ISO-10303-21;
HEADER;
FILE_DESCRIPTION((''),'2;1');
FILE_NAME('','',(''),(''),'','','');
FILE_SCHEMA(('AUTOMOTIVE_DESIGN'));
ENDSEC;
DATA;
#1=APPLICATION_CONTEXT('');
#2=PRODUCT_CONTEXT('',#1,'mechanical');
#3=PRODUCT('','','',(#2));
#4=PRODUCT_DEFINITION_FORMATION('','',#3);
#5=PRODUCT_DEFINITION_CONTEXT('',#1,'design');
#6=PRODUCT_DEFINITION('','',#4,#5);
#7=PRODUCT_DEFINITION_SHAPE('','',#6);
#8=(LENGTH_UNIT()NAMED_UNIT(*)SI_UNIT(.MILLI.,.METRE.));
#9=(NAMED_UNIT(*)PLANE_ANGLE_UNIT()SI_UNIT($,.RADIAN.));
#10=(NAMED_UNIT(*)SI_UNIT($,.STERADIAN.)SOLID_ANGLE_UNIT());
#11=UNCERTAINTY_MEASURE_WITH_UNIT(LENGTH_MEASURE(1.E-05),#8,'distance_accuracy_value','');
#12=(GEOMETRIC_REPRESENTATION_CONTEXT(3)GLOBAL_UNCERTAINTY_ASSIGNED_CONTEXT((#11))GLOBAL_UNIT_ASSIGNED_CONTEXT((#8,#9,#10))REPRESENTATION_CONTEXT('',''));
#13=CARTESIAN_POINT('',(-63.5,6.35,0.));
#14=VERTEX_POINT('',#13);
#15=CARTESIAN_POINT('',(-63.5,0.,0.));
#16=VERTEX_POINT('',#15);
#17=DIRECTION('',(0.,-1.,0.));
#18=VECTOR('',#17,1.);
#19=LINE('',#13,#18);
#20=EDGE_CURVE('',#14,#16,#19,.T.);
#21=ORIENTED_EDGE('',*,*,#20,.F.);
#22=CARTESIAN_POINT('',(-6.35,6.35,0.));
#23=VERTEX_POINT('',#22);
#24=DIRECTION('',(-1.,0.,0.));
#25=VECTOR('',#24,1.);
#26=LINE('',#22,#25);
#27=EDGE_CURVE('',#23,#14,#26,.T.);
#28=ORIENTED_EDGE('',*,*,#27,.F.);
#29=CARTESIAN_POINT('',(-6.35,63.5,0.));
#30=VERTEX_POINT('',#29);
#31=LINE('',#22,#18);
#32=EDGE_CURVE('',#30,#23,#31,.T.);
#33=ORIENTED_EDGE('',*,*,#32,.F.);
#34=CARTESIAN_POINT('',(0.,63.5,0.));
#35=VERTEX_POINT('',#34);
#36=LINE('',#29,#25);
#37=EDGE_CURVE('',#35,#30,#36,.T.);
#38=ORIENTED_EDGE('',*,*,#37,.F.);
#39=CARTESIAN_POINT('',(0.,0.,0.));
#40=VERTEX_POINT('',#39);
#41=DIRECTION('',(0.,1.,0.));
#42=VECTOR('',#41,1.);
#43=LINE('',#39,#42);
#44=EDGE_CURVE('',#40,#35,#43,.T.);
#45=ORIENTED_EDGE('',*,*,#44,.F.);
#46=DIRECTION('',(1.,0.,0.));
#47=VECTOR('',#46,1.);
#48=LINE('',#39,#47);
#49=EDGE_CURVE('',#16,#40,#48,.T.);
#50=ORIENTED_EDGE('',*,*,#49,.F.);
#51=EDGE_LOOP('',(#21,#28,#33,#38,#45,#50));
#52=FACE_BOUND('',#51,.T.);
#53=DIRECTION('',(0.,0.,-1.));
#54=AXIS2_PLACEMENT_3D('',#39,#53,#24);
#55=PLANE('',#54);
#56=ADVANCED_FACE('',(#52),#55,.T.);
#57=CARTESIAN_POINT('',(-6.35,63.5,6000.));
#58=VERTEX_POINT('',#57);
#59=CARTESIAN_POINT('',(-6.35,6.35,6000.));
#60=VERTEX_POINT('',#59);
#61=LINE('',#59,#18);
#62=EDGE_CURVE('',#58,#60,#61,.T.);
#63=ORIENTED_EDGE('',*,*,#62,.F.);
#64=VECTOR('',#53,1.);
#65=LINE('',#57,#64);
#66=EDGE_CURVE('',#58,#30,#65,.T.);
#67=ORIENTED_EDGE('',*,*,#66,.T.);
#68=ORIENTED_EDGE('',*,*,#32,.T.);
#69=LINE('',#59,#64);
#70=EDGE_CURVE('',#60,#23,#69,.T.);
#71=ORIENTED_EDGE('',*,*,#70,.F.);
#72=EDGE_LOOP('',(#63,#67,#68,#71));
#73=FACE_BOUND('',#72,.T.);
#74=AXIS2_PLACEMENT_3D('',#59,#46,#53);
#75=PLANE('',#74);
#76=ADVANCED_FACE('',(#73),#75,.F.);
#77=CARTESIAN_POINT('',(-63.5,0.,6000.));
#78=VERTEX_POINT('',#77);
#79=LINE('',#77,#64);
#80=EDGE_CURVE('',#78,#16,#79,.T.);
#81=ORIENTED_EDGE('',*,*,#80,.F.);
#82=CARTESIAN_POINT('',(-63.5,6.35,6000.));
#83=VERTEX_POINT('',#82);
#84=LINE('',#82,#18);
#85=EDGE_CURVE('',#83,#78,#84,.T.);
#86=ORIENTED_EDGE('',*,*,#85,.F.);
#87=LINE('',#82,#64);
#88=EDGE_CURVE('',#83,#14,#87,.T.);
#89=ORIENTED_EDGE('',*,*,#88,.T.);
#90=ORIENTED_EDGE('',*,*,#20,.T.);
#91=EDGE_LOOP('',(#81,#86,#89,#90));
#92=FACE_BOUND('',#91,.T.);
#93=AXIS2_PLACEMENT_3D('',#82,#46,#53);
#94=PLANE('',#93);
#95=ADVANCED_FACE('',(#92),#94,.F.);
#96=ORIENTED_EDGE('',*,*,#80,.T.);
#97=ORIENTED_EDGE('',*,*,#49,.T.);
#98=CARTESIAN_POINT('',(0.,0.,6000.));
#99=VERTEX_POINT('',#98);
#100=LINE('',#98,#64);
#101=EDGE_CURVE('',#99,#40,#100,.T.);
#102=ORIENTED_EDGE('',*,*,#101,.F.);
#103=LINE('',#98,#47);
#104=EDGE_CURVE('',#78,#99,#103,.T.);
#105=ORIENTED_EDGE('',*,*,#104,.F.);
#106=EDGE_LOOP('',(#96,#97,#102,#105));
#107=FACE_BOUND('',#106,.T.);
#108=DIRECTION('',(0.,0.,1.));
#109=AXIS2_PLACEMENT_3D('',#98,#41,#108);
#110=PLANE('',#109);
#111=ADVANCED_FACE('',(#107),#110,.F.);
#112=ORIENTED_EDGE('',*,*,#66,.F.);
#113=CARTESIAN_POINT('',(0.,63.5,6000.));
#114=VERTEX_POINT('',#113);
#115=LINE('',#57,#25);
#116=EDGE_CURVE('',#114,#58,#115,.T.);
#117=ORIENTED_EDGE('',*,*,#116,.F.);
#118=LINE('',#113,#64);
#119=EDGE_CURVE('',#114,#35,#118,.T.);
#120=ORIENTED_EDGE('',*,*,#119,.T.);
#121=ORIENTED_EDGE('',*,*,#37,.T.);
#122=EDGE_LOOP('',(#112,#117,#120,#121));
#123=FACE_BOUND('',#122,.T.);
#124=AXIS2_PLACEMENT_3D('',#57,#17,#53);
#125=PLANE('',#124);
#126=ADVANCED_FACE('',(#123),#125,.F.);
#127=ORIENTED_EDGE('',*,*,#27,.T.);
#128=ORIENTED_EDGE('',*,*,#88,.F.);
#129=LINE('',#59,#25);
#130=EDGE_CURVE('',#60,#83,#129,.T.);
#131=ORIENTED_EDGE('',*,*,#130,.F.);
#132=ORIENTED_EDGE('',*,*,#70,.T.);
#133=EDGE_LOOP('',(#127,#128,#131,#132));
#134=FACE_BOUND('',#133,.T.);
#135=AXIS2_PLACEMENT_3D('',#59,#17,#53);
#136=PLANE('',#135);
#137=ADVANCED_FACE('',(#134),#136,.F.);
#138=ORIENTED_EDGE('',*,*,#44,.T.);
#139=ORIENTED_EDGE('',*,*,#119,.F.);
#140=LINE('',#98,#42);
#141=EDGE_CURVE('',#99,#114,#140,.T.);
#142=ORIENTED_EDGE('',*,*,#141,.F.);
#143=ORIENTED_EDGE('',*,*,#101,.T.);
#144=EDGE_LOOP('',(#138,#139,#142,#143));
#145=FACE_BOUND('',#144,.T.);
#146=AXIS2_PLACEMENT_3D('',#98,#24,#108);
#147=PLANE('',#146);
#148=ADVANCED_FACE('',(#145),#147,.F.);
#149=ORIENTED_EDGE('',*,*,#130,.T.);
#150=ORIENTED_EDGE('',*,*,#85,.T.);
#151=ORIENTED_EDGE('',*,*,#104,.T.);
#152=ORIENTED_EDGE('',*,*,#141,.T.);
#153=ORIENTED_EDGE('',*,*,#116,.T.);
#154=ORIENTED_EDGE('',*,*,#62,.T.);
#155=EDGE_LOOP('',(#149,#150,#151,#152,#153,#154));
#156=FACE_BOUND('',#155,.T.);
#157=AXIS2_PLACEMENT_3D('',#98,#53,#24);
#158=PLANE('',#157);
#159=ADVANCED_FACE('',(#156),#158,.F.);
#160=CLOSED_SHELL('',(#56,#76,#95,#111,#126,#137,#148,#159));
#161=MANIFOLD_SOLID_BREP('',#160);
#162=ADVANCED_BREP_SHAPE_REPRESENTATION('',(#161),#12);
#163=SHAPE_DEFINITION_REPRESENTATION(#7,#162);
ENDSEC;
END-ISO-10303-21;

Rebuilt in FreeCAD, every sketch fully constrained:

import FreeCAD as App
import Part
import Sketcher

V = App.Vector
Q = App.Units.Quantity


def add_polygon(sketch, points):
    """Adds a closed chain of lines whose ends are joined by coincident constraints."""
    first, n = sketch.GeometryCount, len(points)
    for a, b in zip(points, points[1:] + points[:1]):
        sketch.addGeometry(Part.LineSegment(App.Vector(*a, 0), App.Vector(*b, 0)), False)
    for i in range(n):
        sketch.addConstraint(Sketcher.Constraint("Coincident", first + i, 2, first + (i + 1) % n, 1))

doc = App.newDocument("Part")
params = doc.addObject("Spreadsheet::Sheet", "Params")
for row, (alias, value) in enumerate([
    ("sketch1_width", "2.5 in"),
    ("sketch1_width2", "0.25 in"),
    ("pad1_length", "6000 mm"),
], start=1):
    params.set(f"A{row}", alias)
    params.set(f"B{row}", "=" + value)
    params.setAlias(f"B{row}", alias)

body = doc.addObject("PartDesign::Body", "Body")

# Sketch on XY plane
sketch1 = doc.addObject("Sketcher::SketchObject", "Sketch")
body.addObject(sketch1)
sketch1.AttachmentSupport = (doc.XY_Plane, [""])
sketch1.MapMode = "FlatFace"
add_polygon(sketch1, [(-63.5, 0), (0, 0), (0, 63.5), (-6.35, 63.5), (-6.35, 6.35), (-63.5, 6.35)])  # lines 0-5
sketch1.addConstraint([
    Sketcher.Constraint("Horizontal", 0),
    Sketcher.Constraint("Vertical", 1),
    Sketcher.Constraint("Horizontal", 2),
    Sketcher.Constraint("Vertical", 3),
    Sketcher.Constraint("Horizontal", 4),
    Sketcher.Constraint("Vertical", 5),
    Sketcher.Constraint("Coincident", 0, 2, -1, 1),
    Sketcher.Constraint("Equal", 0, 1),
    Sketcher.Constraint("Equal", 4, 3),
    Sketcher.Constraint("DistanceX", 0, 1, 0, 2, Q("2.5 in")),
    Sketcher.Constraint("DistanceX", 2, 2, 2, 1, Q("0.25 in")),
])
sketch1.setExpression("Constraints[15]", "Params.sketch1_width")
sketch1.setExpression("Constraints[16]", "Params.sketch1_width2")
pad1 = doc.addObject("PartDesign::Pad", "Pad")
body.addObject(pad1)
pad1.Profile = sketch1
pad1.setExpression("Length", "Params.pad1_length")

doc.recompute()
